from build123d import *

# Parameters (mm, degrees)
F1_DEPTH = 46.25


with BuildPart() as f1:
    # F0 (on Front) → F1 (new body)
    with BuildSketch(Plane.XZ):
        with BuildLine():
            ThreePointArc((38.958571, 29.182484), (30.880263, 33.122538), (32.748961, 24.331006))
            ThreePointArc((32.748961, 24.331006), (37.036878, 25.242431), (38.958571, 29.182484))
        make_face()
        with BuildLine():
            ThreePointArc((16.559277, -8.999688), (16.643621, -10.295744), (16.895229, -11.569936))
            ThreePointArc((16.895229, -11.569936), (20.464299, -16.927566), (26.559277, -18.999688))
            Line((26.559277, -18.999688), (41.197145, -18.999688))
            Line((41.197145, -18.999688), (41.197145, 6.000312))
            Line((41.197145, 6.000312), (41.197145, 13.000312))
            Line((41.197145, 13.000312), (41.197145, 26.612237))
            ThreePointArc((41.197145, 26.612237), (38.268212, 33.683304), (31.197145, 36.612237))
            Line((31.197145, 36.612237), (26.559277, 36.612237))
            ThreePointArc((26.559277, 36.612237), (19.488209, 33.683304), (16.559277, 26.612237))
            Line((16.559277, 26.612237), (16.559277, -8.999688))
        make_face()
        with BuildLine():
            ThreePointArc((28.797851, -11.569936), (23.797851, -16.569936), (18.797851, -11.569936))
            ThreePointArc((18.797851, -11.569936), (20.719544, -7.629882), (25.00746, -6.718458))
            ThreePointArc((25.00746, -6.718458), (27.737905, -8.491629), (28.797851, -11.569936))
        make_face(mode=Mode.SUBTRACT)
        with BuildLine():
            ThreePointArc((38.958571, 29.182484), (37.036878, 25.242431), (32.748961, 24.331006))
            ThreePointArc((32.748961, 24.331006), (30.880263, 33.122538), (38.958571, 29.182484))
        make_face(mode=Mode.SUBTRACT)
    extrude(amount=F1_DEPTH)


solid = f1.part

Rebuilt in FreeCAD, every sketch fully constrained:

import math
import FreeCAD as App
import Part
import Sketcher

V = App.Vector

doc = App.newDocument("Part")
params = doc.addObject("Spreadsheet::Sheet", "Params")
for row, (alias, value) in enumerate([
    ("sketch1_radius", "9.999999 mm"),
    ("sketch1_radius2", "10.000001 mm"),
    ("sketch1_radius3", "4.999998 mm"),
    ("sketch1_radius4", "4.999999 mm"),
    ("sketch1_radius5", "5 mm"),
    ("pad1_length", "46.25 mm"),
], start=1):
    params.set(f"A{row}", alias)
    params.set(f"B{row}", "=" + value)
    params.setAlias(f"B{row}", alias)

body = doc.addObject("PartDesign::Body", "Body")

sketch1 = body.newObject("Sketcher::SketchObject", "Sketch")
sketch1.AttachmentSupport = (doc.getObject("XZ_Plane"), [""])
sketch1.MapMode = "FlatFace"
sketch1.addGeometry(Part.ArcOfCircle(Part.Circle(V(26.559302, -8.999684, 0), V(0, 0, 1), 10.000025), math.radians(-179.99998), math.radians(-165.10642)), False)
sketch1.addGeometry(Part.ArcOfCircle(Part.Circle(V(26.559276, -8.999689, 0), V(0, 0, 1), 9.999999), math.radians(-165.106409), math.radians(-89.999994)), False)
sketch1.addGeometry(Part.LineSegment(V(26.559277, -18.999688, 0), V(41.197145, -18.999688, 0)), False)
sketch1.addGeometry(Part.LineSegment(V(41.197145, -18.999688, 0), V(41.197145, 26.612237, 0)), False)
sketch1.addGeometry(Part.ArcOfCircle(Part.Circle(V(31.197142, 26.612234, 0), V(0, 0, 1), 10.000003), math.radians(0.000016), math.radians(89.999984)), False)
sketch1.addGeometry(Part.LineSegment(V(31.197145, 36.612237, 0), V(26.559277, 36.612237, 0)), False)
sketch1.addGeometry(Part.ArcOfCircle(Part.Circle(V(26.559278, 26.612236, 0), V(0, 0, 1), 10.000001), math.radians(90.000006), math.radians(179.999994)), False)
sketch1.addGeometry(Part.LineSegment(V(16.559277, 26.612237, 0), V(16.559277, -8.999688, 0)), False)
sketch1.addGeometry(Part.ArcOfCircle(Part.Circle(V(23.797853, -11.569936, 0), V(0, 0, 1), 4.999998), math.radians(-0.000005), math.radians(76.000019)), False)
sketch1.addGeometry(Part.ArcOfCircle(Part.Circle(V(23.797851, -11.569936, 0), V(0, 0, 1), 5), math.radians(180), math.radians(360)), False)
sketch1.addGeometry(Part.ArcOfCircle(Part.Circle(V(23.79785, -11.569936, 0), V(0, 0, 1), 4.999999), math.radians(75.999993), math.radians(180.000004)), False)
sketch1.addGeometry(Part.ArcOfCircle(Part.Circle(V(33.958571, 29.182485, 0), V(0, 0, 1), 5), math.radians(-0.000007), math.radians(255.999995)), False)
sketch1.addGeometry(Part.ArcOfCircle(Part.Circle(V(33.95857, 29.182485, 0), V(0, 0, 1), 5.000001), math.radians(-103.999996), math.radians(-0.000016)), False)
sketch1.addConstraint(Sketcher.Constraint("Coincident", 0, 2, 1, 1))
sketch1.addConstraint(Sketcher.Constraint("Coincident", 1, 2, 2, 1))
sketch1.addConstraint(Sketcher.Constraint("Coincident", 2, 2, 3, 1))
sketch1.addConstraint(Sketcher.Constraint("Coincident", 3, 2, 4, 1))
sketch1.addConstraint(Sketcher.Constraint("Coincident", 4, 2, 5, 1))
sketch1.addConstraint(Sketcher.Constraint("Coincident", 5, 2, 6, 1))
sketch1.addConstraint(Sketcher.Constraint("Coincident", 6, 2, 7, 1))
sketch1.addConstraint(Sketcher.Constraint("Coincident", 7, 2, 0, 1))
sketch1.addConstraint(Sketcher.Constraint("Coincident", 8, 1, 9, 2))
sketch1.addConstraint(Sketcher.Constraint("Coincident", 9, 1, 10, 2))
sketch1.addConstraint(Sketcher.Constraint("Coincident", 10, 1, 8, 2))
sketch1.addConstraint(Sketcher.Constraint("Coincident", 11, 1, 12, 2))
sketch1.addConstraint(Sketcher.Constraint("Coincident", 12, 1, 11, 2))
sketch1.addConstraint(Sketcher.Constraint("Horizontal", 2))
sketch1.addConstraint(Sketcher.Constraint("Vertical", 3))
sketch1.addConstraint(Sketcher.Constraint("Horizontal", 5))
sketch1.addConstraint(Sketcher.Constraint("Vertical", 7))
sketch1.addConstraint(Sketcher.Constraint("Coincident", 9, 3, 8, 3))
sketch1.addConstraint(Sketcher.Constraint("Radius", 1, 9.999999))
sketch1.addConstraint(Sketcher.Constraint("Radius", 6, 10.000001))
sketch1.addConstraint(Sketcher.Constraint("Radius", 8, 4.999998))
sketch1.addConstraint(Sketcher.Constraint("Radius", 10, 4.999999))
sketch1.addConstraint(Sketcher.Constraint("Radius", 11, 5.0))
sketch1.addConstraint(Sketcher.Constraint("Radius", 12, 5.000001))
sketch1.addConstraint(Sketcher.Constraint("DistanceX", 4, 2, 3, 2, 10.0))
sketch1.addConstraint(Sketcher.Constraint("DistanceY", 3, 2, 4, 2, 10.0))
sketch1.addConstraint(Sketcher.Constraint("DistanceX", 6, 2, 5, 2, 10.0))
sketch1.addConstraint(Sketcher.Constraint("DistanceY", 6, 2, 5, 2, 10.0))
sketch1.addConstraint(Sketcher.Constraint("DistanceX", 7, 2, 1, 3, 9.999999))
sketch1.addConstraint(Sketcher.Constraint("Radius", 0, 10.000025))
sketch1.addConstraint(Sketcher.Constraint("Radius", 4, 10.000003))
sketch1.addConstraint(Sketcher.Constraint("DistanceX", -1, 1, 0, 3, 26.559302))
sketch1.addConstraint(Sketcher.Constraint("DistanceX", 2, 1, 2, 2, 14.637868))
sketch1.addConstraint(Sketcher.Constraint("DistanceX", 5, 2, 5, 1, 4.637868))
sketch1.addConstraint(Sketcher.Constraint("DistanceY", 3, 1, 3, 2, 45.611925))
sketch1.addConstraint(Sketcher.Constraint("DistanceY", 7, 2, 7, 1, 35.611925))
sketch1.addConstraint(Sketcher.Constraint("DistanceY", 1, 3, -1, 1, 8.999689))
sketch1.addConstraint(Sketcher.Constraint("DistanceX", -1, 1, 9, 3, 23.797851))
sketch1.addConstraint(Sketcher.Constraint("DistanceX", -1, 1, 11, 3, 33.958571))
sketch1.addConstraint(Sketcher.Constraint("DistanceX", -1, 1, 0, 2, 16.895229))
sketch1.addConstraint(Sketcher.Constraint("DistanceX", -1, 1, 10, 1, 25.00746))
sketch1.addConstraint(Sketcher.Constraint("DistanceY", 10, 1, -1, 1, 6.718458))
sketch1.addConstraint(Sketcher.Constraint("DistanceX", -1, 1, 12, 1, 32.748961))
sketch1.addConstraint(Sketcher.Constraint("DistanceY", 4, 3, 11, 3, 2.57025))
sketch1.addConstraint(Sketcher.Constraint("DistanceY", 8, 1, 0, 3, 2.570252))
sketch1.addConstraint(Sketcher.Constraint("DistanceY", 4, 3, 11, 1, 2.57025))
sketch1.addConstraint(Sketcher.Constraint("DistanceY", 9, 1, -1, 1, 11.569936))
sketch1.setExpression("Constraints[18]", "Params.sketch1_radius")
sketch1.setExpression("Constraints[19]", "Params.sketch1_radius2")
sketch1.setExpression("Constraints[20]", "Params.sketch1_radius3")
sketch1.setExpression("Constraints[21]", "Params.sketch1_radius4")
sketch1.setExpression("Constraints[22]", "Params.sketch1_radius5")
pad1 = body.newObject("PartDesign::Pad", "Pad")
pad1.Profile = sketch1
pad1.setExpression("Length", "Params.pad1_length")

doc.recompute()
